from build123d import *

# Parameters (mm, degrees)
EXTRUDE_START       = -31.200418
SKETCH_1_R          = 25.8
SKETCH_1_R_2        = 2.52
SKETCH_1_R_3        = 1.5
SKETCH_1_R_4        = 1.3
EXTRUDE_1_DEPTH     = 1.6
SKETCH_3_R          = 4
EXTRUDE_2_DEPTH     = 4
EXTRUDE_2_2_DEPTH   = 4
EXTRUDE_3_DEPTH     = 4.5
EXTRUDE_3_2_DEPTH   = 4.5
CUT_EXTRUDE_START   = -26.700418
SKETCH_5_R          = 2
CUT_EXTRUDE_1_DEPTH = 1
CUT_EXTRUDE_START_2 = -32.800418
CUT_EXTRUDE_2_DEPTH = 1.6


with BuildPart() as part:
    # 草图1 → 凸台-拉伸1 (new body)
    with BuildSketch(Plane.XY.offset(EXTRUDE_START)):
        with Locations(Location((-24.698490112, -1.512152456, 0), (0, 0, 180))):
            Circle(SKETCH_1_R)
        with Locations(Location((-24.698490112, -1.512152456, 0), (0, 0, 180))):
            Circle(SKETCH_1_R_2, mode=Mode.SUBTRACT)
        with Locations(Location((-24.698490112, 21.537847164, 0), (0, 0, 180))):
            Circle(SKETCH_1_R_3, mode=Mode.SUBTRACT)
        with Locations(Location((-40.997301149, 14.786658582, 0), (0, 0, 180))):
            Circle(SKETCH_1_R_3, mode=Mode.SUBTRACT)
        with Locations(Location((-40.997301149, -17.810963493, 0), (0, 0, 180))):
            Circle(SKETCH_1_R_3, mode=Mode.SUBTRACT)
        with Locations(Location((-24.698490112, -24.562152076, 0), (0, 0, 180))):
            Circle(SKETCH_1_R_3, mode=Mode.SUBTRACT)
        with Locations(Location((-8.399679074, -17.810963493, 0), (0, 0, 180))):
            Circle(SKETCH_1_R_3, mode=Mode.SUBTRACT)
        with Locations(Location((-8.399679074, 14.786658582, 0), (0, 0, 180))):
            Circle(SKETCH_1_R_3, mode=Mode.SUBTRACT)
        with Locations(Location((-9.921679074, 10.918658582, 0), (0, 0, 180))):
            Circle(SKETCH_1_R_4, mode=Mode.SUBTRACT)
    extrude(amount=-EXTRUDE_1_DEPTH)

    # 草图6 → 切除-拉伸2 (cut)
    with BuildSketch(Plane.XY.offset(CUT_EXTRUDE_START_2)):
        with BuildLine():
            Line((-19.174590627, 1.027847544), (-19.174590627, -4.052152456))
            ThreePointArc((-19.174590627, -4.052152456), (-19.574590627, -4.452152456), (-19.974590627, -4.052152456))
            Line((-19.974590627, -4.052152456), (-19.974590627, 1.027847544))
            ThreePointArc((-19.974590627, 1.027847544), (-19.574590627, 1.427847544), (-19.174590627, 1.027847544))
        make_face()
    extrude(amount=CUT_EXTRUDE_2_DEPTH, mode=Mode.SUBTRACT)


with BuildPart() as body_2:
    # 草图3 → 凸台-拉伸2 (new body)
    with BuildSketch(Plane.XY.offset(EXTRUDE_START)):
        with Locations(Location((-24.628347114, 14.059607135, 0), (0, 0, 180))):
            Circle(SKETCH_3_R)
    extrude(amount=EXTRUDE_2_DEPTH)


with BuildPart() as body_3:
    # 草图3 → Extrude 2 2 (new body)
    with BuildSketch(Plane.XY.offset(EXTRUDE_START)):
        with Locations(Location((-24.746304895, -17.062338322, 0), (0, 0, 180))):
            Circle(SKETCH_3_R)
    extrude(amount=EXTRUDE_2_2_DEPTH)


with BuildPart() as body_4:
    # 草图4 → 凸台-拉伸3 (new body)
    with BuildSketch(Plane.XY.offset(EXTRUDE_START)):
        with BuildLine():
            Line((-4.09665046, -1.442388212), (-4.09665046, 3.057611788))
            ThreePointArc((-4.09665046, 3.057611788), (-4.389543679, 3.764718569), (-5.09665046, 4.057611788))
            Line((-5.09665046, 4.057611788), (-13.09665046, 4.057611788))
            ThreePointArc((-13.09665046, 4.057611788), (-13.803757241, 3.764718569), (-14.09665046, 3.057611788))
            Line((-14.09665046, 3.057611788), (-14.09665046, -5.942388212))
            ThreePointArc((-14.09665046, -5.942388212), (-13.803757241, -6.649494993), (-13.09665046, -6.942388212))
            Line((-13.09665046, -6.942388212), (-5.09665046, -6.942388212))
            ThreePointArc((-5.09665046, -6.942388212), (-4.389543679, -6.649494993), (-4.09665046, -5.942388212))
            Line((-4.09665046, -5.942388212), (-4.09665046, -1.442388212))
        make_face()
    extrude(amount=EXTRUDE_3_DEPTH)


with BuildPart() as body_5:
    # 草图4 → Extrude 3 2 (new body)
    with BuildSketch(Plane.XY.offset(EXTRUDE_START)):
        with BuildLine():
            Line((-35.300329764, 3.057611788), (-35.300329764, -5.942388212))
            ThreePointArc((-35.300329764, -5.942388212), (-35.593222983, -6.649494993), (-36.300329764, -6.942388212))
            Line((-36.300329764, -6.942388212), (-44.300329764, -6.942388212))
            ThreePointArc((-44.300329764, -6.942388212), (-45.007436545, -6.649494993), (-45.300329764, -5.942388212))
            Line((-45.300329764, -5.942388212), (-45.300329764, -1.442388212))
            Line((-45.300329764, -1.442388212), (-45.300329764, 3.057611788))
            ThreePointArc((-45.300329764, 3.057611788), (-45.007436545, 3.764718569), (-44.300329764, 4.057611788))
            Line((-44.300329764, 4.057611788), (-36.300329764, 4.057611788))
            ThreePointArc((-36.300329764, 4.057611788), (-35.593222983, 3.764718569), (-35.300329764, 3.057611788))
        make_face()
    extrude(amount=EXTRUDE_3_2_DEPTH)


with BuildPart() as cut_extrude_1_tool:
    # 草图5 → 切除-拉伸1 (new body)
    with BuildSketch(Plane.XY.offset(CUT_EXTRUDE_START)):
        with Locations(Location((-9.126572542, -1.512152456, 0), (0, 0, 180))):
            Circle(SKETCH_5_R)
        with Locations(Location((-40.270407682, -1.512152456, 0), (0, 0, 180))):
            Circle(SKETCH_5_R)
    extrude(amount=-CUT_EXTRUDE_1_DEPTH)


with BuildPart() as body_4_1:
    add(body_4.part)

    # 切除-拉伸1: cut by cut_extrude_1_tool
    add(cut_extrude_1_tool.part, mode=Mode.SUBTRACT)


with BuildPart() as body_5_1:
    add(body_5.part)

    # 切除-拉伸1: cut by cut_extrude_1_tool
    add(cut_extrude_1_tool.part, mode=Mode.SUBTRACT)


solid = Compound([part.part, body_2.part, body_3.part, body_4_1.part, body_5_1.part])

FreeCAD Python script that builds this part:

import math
import FreeCAD as App
import Part
import Sketcher

doc = App.newDocument("Part")
body = doc.addObject("PartDesign::Body", "Body")

sketch1 = body.newObject("Sketcher::SketchObject", "Sketch")
sketch1.AttachmentSupport = (doc.getObject("XY_Plane"), [""])
sketch1.MapMode = "FlatFace"
sketch1.AttachmentOffset = App.Placement(App.Vector(0, 0, -31.200418), App.Rotation())
sketch1.addGeometry(Part.Circle(App.Vector(-24.7, -1.5, 0), App.Vector(0, 0, 1), 25.8), False)
sketch1.addGeometry(Part.Circle(App.Vector(-8.4, 14.8, 0), App.Vector(0, 0, 1), 1.5), False)
sketch1.addGeometry(Part.Circle(App.Vector(-9.9, 10.9, 0), App.Vector(0, 0, 1), 1.3), False)
sketch1.addGeometry(Part.Circle(App.Vector(-24.7, 21.5, 0), App.Vector(0, 0, 1), 1.5), False)
sketch1.addGeometry(Part.Circle(App.Vector(-41, 14.8, 0), App.Vector(0, 0, 1), 1.5), False)
sketch1.addGeometry(Part.Circle(App.Vector(-24.7, -1.5, 0), App.Vector(0, 0, 1), 2.5), False)
sketch1.addGeometry(Part.Circle(App.Vector(-8.4, -17.8, 0), App.Vector(0, 0, 1), 1.5), False)
sketch1.addGeometry(Part.Circle(App.Vector(-24.7, -24.6, 0), App.Vector(0, 0, 1), 1.5), False)
sketch1.addGeometry(Part.Circle(App.Vector(-41, -17.8, 0), App.Vector(0, 0, 1), 1.5), False)
sketch1.addConstraint(Sketcher.Constraint("Coincident", 5, 3, 0, 3))
sketch1.addConstraint(Sketcher.Constraint("Equal", 1, 3))
sketch1.addConstraint(Sketcher.Constraint("Equal", 3, 4))
sketch1.addConstraint(Sketcher.Constraint("Equal", 4, 6))
sketch1.addConstraint(Sketcher.Constraint("Equal", 6, 7))
sketch1.addConstraint(Sketcher.Constraint("Equal", 7, 8))
sketch1.addConstraint(Sketcher.Constraint("Horizontal", 1, 3, 4, 3))
sketch1.addConstraint(Sketcher.Constraint("Horizontal", 6, 3, 8, 3))
sketch1.addConstraint(Sketcher.Constraint("Vertical", 0, 3, 3, 3))
sketch1.addConstraint(Sketcher.Constraint("Vertical", 1, 3, 6, 3))
sketch1.addConstraint(Sketcher.Constraint("Vertical", 5, 3, 7, 3))
sketch1.addConstraint(Sketcher.Constraint("Vertical", 4, 3, 8, 3))
sketch1.addConstraint(Sketcher.Constraint("Diameter", 1, 3.0))
sketch1.addConstraint(Sketcher.Constraint("Diameter", 0, 51.6))
sketch1.addConstraint(Sketcher.Constraint("Diameter", 2, 2.6))
sketch1.addConstraint(Sketcher.Constraint("Diameter", 5, 5.04))
sketch1.addConstraint(Sketcher.Constraint("DistanceY", 0, 3, 3, 3, 23.05))
sketch1.addConstraint(Sketcher.Constraint("DistanceY", 7, 3, 0, 3, 23.05))
sketch1.addConstraint(Sketcher.Constraint("DistanceX", 2, 3, 1, 3, 1.522))
sketch1.addConstraint(Sketcher.Constraint("DistanceY", 2, 3, 1, 3, 3.868))
sketch1.addConstraint(Sketcher.Constraint("DistanceX", 4, 3, -1, 1, 40.997301))
sketch1.addConstraint(Sketcher.Constraint("DistanceX", 0, 3, -1, 1, 24.69849))
sketch1.addConstraint(Sketcher.Constraint("DistanceX", 1, 3, -1, 1, 8.399679))
sketch1.addConstraint(Sketcher.Constraint("DistanceY", -1, 1, 1, 3, 14.786659))
sketch1.addConstraint(Sketcher.Constraint("DistanceY", 0, 3, 1, 3, 16.298811))
sketch1.addConstraint(Sketcher.Constraint("DistanceY", 6, 3, 0, 3, 16.298811))
pad1 = body.newObject("PartDesign::Pad", "Pad")
pad1.Profile = sketch1
pad1.Length = 1.6
pad1.Reversed = True

sketch2 = body.newObject("Sketcher::SketchObject", "Sketch001")
sketch2.AttachmentSupport = (doc.getObject("XY_Plane"), [""])
sketch2.MapMode = "FlatFace"
sketch2.AttachmentOffset = App.Placement(App.Vector(0, 0, -32.800418), App.Rotation())
sketch2.addGeometry(Part.LineSegment(App.Vector(-19.17, -4.05, 0), App.Vector(-19.17, 1.03, 0)), False)
sketch2.addGeometry(Part.ArcOfCircle(Part.Circle(App.Vector(-19.57, 1.03, 0), App.Vector(0, 0, 1), 0.4), math.radians(0), math.radians(180)), False)
sketch2.addGeometry(Part.LineSegment(App.Vector(-19.97, 1.03, 0), App.Vector(-19.97, -4.05, 0)), False)
sketch2.addGeometry(Part.ArcOfCircle(Part.Circle(App.Vector(-19.57, -4.05, 0), App.Vector(0, 0, 1), 0.4), math.radians(180), math.radians(360)), False)
sketch2.addConstraint(Sketcher.Constraint("Tangent", 0, 2, 1, 1))
sketch2.addConstraint(Sketcher.Constraint("Tangent", 1, 2, 2, 1))
sketch2.addConstraint(Sketcher.Constraint("Tangent", 2, 2, 3, 1))
sketch2.addConstraint(Sketcher.Constraint("Tangent", 3, 2, 0, 1))
sketch2.addConstraint(Sketcher.Constraint("Vertical", 0))
sketch2.addConstraint(Sketcher.Constraint("Vertical", 2))
sketch2.addConstraint(Sketcher.Constraint("Radius", 1, 0.4))
sketch2.addConstraint(Sketcher.Constraint("DistanceY", 0, 1, 0, 2, 5.08))
sketch2.addConstraint(Sketcher.Constraint("DistanceX", 1, 3, -1, 1, 19.574591))
sketch2.addConstraint(Sketcher.Constraint("DistanceY", -1, 1, 1, 3, 1.027848))
pocket1 = body.newObject("PartDesign::Pocket", "Pocket")
pocket1.Profile = sketch2
pocket1.Length = 1.6
pocket1.Reversed = True
body2 = doc.addObject("PartDesign::Body", "Body001")

sketch3 = body2.newObject("Sketcher::SketchObject", "Sketch002")
sketch3.AttachmentSupport = (doc.getObject("XY_Plane001"), [""])
sketch3.MapMode = "FlatFace"
sketch3.AttachmentOffset = App.Placement(App.Vector(0, 0, -31.200418), App.Rotation())
sketch3.addGeometry(Part.Circle(App.Vector(-24.6, 14.1, 0), App.Vector(0, 0, 1), 4), False)
sketch3.addConstraint(Sketcher.Constraint("Diameter", 0, 8.0))
sketch3.addConstraint(Sketcher.Constraint("DistanceX", 0, 3, -1, 1, 24.628347))
sketch3.addConstraint(Sketcher.Constraint("DistanceY", -1, 1, 0, 3, 14.059607))
pad2 = body2.newObject("PartDesign::Pad", "Pad001")
pad2.Profile = sketch3
pad2.Length = 4
body3 = doc.addObject("PartDesign::Body", "Body002")

sketch4 = body3.newObject("Sketcher::SketchObject", "Sketch003")
sketch4.AttachmentSupport = (doc.getObject("XY_Plane002"), [""])
sketch4.MapMode = "FlatFace"
sketch4.AttachmentOffset = App.Placement(App.Vector(0, 0, -31.200418), App.Rotation())
sketch4.addGeometry(Part.Circle(App.Vector(-24.7, -17.1, 0), App.Vector(0, 0, 1), 4), False)
sketch4.addConstraint(Sketcher.Constraint("Diameter", 0, 8.0))
sketch4.addConstraint(Sketcher.Constraint("DistanceY", 0, 3, -1, 1, 17.062338))
sketch4.addConstraint(Sketcher.Constraint("DistanceX", 0, 3, -1, 1, 24.746305))
pad3 = body3.newObject("PartDesign::Pad", "Pad002")
pad3.Profile = sketch4
pad3.Length = 4
body4 = doc.addObject("PartDesign::Body", "Body003")

sketch5 = body4.newObject("Sketcher::SketchObject", "Sketch004")
sketch5.AttachmentSupport = (doc.getObject("XY_Plane003"), [""])
sketch5.MapMode = "FlatFace"
sketch5.AttachmentOffset = App.Placement(App.Vector(0, 0, -31.200418), App.Rotation())
sketch5.addGeometry(Part.ArcOfCircle(Part.Circle(App.Vector(-5.1, 3.1, 0), App.Vector(0, 0, 1), 1), math.radians(0), math.radians(90)), False)
sketch5.addGeometry(Part.LineSegment(App.Vector(-5.1, 4.1, 0), App.Vector(-13.1, 4.1, 0)), False)
sketch5.addGeometry(Part.ArcOfCircle(Part.Circle(App.Vector(-13.1, 3.1, 0), App.Vector(0, 0, 1), 1), math.radians(90), math.radians(180)), False)
sketch5.addGeometry(Part.LineSegment(App.Vector(-14.1, 3.1, 0), App.Vector(-14.1, -5.9, 0)), False)
sketch5.addGeometry(Part.ArcOfCircle(Part.Circle(App.Vector(-13.1, -5.9, 0), App.Vector(0, 0, 1), 1), math.radians(-180), math.radians(-90)), False)
sketch5.addGeometry(Part.LineSegment(App.Vector(-13.1, -6.9, 0), App.Vector(-5.1, -6.9, 0)), False)
sketch5.addGeometry(Part.ArcOfCircle(Part.Circle(App.Vector(-5.1, -5.9, 0), App.Vector(0, 0, 1), 1), math.radians(-90), math.radians(0)), False)
sketch5.addGeometry(Part.LineSegment(App.Vector(-4.1, -5.9, 0), App.Vector(-4.1, 3.1, 0)), False)
sketch5.addConstraint(Sketcher.Constraint("Tangent", 0, 2, 1, 1))
sketch5.addConstraint(Sketcher.Constraint("Tangent", 1, 2, 2, 1))
sketch5.addConstraint(Sketcher.Constraint("Tangent", 2, 2, 3, 1))
sketch5.addConstraint(Sketcher.Constraint("Tangent", 3, 2, 4, 1))
sketch5.addConstraint(Sketcher.Constraint("Tangent", 4, 2, 5, 1))
sketch5.addConstraint(Sketcher.Constraint("Tangent", 5, 2, 6, 1))
sketch5.addConstraint(Sketcher.Constraint("Tangent", 6, 2, 7, 1))
sketch5.addConstraint(Sketcher.Constraint("Tangent", 7, 2, 0, 1))
sketch5.addConstraint(Sketcher.Constraint("Horizontal", 1))
sketch5.addConstraint(Sketcher.Constraint("Vertical", 3))
sketch5.addConstraint(Sketcher.Constraint("Horizontal", 5))
sketch5.addConstraint(Sketcher.Constraint("Vertical", 7))
sketch5.addConstraint(Sketcher.Constraint("Equal", 0, 2))
sketch5.addConstraint(Sketcher.Constraint("Equal", 2, 4))
sketch5.addConstraint(Sketcher.Constraint("Equal", 4, 6))
sketch5.addConstraint(Sketcher.Constraint("Radius", 0, 1.0))
sketch5.addConstraint(Sketcher.Constraint("DistanceX", 1, 2, 1, 1, 8.0))
sketch5.addConstraint(Sketcher.Constraint("DistanceY", 3, 2, 3, 1, 9.0))
sketch5.addConstraint(Sketcher.Constraint("DistanceX", 0, 3, -1, 1, 5.09665))
sketch5.addConstraint(Sketcher.Constraint("DistanceY", -1, 1, 0, 3, 3.057612))
pad4 = body4.newObject("PartDesign::Pad", "Pad003")
pad4.Profile = sketch5
pad4.Length = 4.5
body5 = doc.addObject("PartDesign::Body", "Body004")

sketch6 = body5.newObject("Sketcher::SketchObject", "Sketch005")
sketch6.AttachmentSupport = (doc.getObject("XY_Plane004"), [""])
sketch6.MapMode = "FlatFace"
sketch6.AttachmentOffset = App.Placement(App.Vector(0, 0, -31.200418), App.Rotation())
sketch6.addGeometry(Part.LineSegment(App.Vector(-35.3, -5.9, 0), App.Vector(-35.3, 3.1, 0)), False)
sketch6.addGeometry(Part.ArcOfCircle(Part.Circle(App.Vector(-36.3, 3.1, 0), App.Vector(0, 0, 1), 1), math.radians(0), math.radians(90)), False)
sketch6.addGeometry(Part.LineSegment(App.Vector(-36.3, 4.1, 0), App.Vector(-44.3, 4.1, 0)), False)
sketch6.addGeometry(Part.ArcOfCircle(Part.Circle(App.Vector(-44.3, 3.1, 0), App.Vector(0, 0, 1), 1), math.radians(90), math.radians(180)), False)
sketch6.addGeometry(Part.LineSegment(App.Vector(-45.3, 3.1, 0), App.Vector(-45.3, -5.9, 0)), False)
sketch6.addGeometry(Part.ArcOfCircle(Part.Circle(App.Vector(-44.3, -5.9, 0), App.Vector(0, 0, 1), 1), math.radians(-180), math.radians(-90)), False)
sketch6.addGeometry(Part.LineSegment(App.Vector(-44.3, -6.9, 0), App.Vector(-36.3, -6.9, 0)), False)
sketch6.addGeometry(Part.ArcOfCircle(Part.Circle(App.Vector(-36.3, -5.9, 0), App.Vector(0, 0, 1), 1), math.radians(-90), math.radians(0)), False)
sketch6.addConstraint(Sketcher.Constraint("Tangent", 0, 2, 1, 1))
sketch6.addConstraint(Sketcher.Constraint("Tangent", 1, 2, 2, 1))
sketch6.addConstraint(Sketcher.Constraint("Tangent", 2, 2, 3, 1))
sketch6.addConstraint(Sketcher.Constraint("Tangent", 3, 2, 4, 1))
sketch6.addConstraint(Sketcher.Constraint("Tangent", 4, 2, 5, 1))
sketch6.addConstraint(Sketcher.Constraint("Tangent", 5, 2, 6, 1))
sketch6.addConstraint(Sketcher.Constraint("Tangent", 6, 2, 7, 1))
sketch6.addConstraint(Sketcher.Constraint("Tangent", 7, 2, 0, 1))
sketch6.addConstraint(Sketcher.Constraint("Vertical", 0))
sketch6.addConstraint(Sketcher.Constraint("Horizontal", 2))
sketch6.addConstraint(Sketcher.Constraint("Vertical", 4))
sketch6.addConstraint(Sketcher.Constraint("Horizontal", 6))
sketch6.addConstraint(Sketcher.Constraint("Equal", 1, 3))
sketch6.addConstraint(Sketcher.Constraint("Equal", 3, 5))
sketch6.addConstraint(Sketcher.Constraint("Equal", 5, 7))
sketch6.addConstraint(Sketcher.Constraint("Radius", 1, 1.0))
sketch6.addConstraint(Sketcher.Constraint("DistanceX", 2, 2, 2, 1, 8.0))
sketch6.addConstraint(Sketcher.Constraint("DistanceY", 0, 1, 0, 2, 9.0))
sketch6.addConstraint(Sketcher.Constraint("DistanceX", 1, 3, -1, 1, 36.30033))
sketch6.addConstraint(Sketcher.Constraint("DistanceY", -1, 1, 1, 3, 3.057612))
pad5 = body5.newObject("PartDesign::Pad", "Pad004")
pad5.Profile = sketch6
pad5.Length = 4.5
body6 = doc.addObject("PartDesign::Body", "Body005")
body6.AllowCompound = True

sketch7 = body6.newObject("Sketcher::SketchObject", "Sketch006")
sketch7.AttachmentSupport = (doc.getObject("XY_Plane005"), [""])
sketch7.MapMode = "FlatFace"
sketch7.AttachmentOffset = App.Placement(App.Vector(0, 0, -26.700418), App.Rotation())
sketch7.addGeometry(Part.Circle(App.Vector(-9.1, -1.5, 0), App.Vector(0, 0, 1), 2), False)
sketch7.addGeometry(Part.Circle(App.Vector(-40.3, -1.5, 0), App.Vector(0, 0, 1), 2), False)
sketch7.addConstraint(Sketcher.Constraint("Equal", 0, 1))
sketch7.addConstraint(Sketcher.Constraint("Horizontal", 0, 3, 1, 3))
sketch7.addConstraint(Sketcher.Constraint("Diameter", 0, 4.0))
sketch7.addConstraint(Sketcher.Constraint("DistanceX", 0, 3, -1, 1, 9.126573))
sketch7.addConstraint(Sketcher.Constraint("DistanceY", 0, 3, -1, 1, 1.512152))
sketch7.addConstraint(Sketcher.Constraint("DistanceX", 1, 3, -1, 1, 40.270408))
pad6 = body6.newObject("PartDesign::Pad", "Pad005")
pad6.Profile = sketch7
pad6.Length = 1
pad6.Reversed = True
doc.recompute()

body7 = doc.addObject("PartDesign::Body", "Body006")
body7.BaseFeature = body6
boolean = body4.newObject("PartDesign::Boolean", "Boolean")
boolean.Type = "Cut"
boolean.addObjects([body7])
doc.recompute()

boolean2 = body5.newObject("PartDesign::Boolean", "Boolean001")
boolean2.Type = "Cut"
boolean2.addObjects([body6])

doc.recompute()
